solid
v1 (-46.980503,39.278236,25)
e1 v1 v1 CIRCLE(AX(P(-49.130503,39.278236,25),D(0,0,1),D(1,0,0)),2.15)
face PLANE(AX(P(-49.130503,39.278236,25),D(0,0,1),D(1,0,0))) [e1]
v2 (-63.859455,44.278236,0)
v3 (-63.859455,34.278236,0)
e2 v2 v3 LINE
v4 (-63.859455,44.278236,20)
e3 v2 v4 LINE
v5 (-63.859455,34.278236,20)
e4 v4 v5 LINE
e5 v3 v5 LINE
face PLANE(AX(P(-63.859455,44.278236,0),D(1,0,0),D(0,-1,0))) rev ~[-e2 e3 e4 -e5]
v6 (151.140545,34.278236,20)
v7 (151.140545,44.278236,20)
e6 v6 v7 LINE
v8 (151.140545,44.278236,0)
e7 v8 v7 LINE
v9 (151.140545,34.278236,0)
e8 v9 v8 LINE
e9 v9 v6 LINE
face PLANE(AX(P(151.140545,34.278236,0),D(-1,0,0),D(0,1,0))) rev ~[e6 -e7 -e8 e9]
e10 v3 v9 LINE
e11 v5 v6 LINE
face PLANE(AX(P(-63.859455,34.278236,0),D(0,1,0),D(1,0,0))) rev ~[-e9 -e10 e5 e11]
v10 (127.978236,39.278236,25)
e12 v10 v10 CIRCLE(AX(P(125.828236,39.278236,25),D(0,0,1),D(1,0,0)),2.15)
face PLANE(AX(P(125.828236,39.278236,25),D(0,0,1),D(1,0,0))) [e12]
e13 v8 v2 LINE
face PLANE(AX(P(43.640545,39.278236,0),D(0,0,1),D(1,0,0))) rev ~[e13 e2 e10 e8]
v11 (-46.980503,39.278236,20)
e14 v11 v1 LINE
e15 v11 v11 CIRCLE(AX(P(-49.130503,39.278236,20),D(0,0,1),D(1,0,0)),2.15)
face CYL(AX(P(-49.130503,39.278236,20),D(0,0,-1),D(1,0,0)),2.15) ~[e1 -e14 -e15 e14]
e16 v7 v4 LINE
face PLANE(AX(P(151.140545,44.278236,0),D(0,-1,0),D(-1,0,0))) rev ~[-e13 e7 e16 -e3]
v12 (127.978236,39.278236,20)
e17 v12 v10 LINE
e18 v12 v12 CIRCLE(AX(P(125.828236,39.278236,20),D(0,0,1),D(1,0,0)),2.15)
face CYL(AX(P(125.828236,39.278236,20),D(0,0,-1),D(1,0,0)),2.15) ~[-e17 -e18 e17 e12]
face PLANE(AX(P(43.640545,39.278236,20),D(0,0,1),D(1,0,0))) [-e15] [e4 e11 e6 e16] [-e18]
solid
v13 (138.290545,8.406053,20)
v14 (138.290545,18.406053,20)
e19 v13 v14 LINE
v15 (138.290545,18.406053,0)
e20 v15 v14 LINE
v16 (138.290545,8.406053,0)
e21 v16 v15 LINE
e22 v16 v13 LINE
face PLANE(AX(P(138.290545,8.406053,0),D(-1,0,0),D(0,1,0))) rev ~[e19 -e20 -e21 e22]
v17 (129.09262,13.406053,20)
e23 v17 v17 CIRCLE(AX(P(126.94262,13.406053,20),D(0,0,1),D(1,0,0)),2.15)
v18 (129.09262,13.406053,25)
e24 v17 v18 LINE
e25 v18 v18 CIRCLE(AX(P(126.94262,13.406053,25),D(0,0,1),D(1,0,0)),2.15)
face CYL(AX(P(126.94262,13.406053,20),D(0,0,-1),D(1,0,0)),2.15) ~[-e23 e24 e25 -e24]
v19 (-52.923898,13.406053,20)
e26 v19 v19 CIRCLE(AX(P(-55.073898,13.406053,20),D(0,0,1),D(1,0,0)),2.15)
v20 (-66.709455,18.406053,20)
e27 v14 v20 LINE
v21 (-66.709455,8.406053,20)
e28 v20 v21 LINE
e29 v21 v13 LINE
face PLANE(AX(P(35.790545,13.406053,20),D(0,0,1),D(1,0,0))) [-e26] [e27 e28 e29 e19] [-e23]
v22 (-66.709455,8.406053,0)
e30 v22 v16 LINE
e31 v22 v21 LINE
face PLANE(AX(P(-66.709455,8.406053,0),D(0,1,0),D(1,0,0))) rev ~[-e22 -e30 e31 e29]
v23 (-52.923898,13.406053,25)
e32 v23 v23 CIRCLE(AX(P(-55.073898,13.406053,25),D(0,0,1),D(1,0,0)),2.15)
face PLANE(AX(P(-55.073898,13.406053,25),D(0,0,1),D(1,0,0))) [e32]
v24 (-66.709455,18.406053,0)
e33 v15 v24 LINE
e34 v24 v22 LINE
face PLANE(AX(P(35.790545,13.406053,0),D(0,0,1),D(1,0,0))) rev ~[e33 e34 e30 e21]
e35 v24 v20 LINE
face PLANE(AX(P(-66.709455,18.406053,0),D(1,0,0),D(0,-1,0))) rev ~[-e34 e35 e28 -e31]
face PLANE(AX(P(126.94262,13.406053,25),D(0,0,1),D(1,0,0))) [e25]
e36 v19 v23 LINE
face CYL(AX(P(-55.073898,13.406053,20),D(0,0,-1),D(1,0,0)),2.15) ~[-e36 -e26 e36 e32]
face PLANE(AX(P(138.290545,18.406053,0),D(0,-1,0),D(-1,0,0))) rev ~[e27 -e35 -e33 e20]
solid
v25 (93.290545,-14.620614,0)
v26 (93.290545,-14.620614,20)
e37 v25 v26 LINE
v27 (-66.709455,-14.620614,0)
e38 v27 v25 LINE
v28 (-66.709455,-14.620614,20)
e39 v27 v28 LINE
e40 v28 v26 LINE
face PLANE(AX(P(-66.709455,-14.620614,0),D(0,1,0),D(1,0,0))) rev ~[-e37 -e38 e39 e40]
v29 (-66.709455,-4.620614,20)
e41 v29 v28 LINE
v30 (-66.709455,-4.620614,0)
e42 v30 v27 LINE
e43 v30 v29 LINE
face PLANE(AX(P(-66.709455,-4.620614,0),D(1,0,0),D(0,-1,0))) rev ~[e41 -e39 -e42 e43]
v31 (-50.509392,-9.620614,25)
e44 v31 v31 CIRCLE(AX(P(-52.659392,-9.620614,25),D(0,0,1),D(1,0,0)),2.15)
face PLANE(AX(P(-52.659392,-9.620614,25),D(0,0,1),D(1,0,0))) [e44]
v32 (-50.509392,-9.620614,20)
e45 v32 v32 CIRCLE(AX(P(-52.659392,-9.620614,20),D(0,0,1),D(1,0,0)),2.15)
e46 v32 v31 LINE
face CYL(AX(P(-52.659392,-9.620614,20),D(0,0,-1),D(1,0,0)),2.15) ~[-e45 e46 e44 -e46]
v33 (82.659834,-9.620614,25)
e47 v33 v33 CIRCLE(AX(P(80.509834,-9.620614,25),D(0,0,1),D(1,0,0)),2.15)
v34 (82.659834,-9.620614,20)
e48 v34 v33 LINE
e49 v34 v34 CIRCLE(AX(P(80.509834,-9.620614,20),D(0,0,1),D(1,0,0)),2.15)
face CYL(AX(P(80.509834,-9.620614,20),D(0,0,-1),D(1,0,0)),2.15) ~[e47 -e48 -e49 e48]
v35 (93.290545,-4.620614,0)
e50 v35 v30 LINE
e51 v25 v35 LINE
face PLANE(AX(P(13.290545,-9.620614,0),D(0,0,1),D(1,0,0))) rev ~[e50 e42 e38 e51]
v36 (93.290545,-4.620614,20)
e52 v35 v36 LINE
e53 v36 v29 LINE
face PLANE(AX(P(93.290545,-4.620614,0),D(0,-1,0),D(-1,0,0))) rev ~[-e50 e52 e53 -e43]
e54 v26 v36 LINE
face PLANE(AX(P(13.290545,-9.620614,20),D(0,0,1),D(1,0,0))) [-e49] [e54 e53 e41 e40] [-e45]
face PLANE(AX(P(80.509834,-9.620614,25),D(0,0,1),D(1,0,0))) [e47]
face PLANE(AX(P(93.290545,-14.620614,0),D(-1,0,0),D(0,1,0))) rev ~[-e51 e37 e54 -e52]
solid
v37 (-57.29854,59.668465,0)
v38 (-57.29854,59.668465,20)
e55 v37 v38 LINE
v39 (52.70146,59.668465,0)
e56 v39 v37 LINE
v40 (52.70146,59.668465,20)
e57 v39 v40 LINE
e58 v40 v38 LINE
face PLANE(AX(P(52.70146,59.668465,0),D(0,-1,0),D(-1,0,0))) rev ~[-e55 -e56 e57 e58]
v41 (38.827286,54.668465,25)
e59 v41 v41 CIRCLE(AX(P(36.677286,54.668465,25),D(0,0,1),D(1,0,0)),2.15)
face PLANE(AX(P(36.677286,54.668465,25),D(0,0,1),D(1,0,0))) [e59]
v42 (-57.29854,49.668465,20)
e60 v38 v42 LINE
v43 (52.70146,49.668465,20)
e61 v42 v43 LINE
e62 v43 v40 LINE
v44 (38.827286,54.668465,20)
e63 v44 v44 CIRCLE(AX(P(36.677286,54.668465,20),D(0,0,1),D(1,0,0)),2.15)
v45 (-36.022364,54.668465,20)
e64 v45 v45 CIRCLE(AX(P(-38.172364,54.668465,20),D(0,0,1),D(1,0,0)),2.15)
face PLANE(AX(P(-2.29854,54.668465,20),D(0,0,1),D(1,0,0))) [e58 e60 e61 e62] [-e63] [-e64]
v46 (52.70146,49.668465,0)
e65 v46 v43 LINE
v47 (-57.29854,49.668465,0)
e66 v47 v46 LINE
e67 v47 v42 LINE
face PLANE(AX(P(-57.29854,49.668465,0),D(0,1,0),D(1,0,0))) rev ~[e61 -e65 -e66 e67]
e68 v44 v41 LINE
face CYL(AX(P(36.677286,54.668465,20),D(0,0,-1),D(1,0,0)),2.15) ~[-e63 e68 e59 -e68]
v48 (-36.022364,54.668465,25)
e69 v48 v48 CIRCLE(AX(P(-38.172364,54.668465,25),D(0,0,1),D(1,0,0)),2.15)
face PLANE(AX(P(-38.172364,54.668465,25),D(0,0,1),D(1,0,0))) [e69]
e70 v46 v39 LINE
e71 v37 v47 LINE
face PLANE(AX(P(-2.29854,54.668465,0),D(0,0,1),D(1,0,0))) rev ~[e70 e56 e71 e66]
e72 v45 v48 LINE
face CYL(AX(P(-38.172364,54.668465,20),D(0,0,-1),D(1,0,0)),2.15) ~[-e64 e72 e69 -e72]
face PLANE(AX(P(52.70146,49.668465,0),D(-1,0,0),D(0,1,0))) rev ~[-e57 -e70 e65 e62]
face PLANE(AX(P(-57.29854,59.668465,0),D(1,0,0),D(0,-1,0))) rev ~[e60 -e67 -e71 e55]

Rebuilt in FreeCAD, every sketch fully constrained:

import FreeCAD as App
import Part
import Sketcher

doc = App.newDocument("Part")
body = doc.addObject("PartDesign::Body", "Body")
body.AllowCompound = True

sketch1 = body.newObject("Sketcher::SketchObject", "Sketch")
sketch1.AttachmentSupport = (doc.getObject("XY_Plane"), [""])
sketch1.MapMode = "FlatFace"
sketch1.addGeometry([
    Part.LineSegment(App.Vector(-57, 60, 0), App.Vector(-57, 50, 0)),
    Part.LineSegment(App.Vector(-57, 50, 0), App.Vector(53, 50, 0)),
    Part.LineSegment(App.Vector(53, 50, 0), App.Vector(53, 60, 0)),
    Part.LineSegment(App.Vector(53, 60, 0), App.Vector(-57, 60, 0)),
], False)
sketch1.addConstraint([
    Sketcher.Constraint("Coincident", 0, 2, 1, 1),
    Sketcher.Constraint("Coincident", 1, 2, 2, 1),
    Sketcher.Constraint("Coincident", 2, 2, 3, 1),
    Sketcher.Constraint("Coincident", 3, 2, 0, 1),
    Sketcher.Constraint("Vertical", 0),
    Sketcher.Constraint("Horizontal", 1),
    Sketcher.Constraint("Vertical", 2),
    Sketcher.Constraint("Horizontal", 3),
    Sketcher.Constraint("DistanceX", 1, 1, 1, 2, 110.0),
    Sketcher.Constraint("DistanceY", 0, 2, 0, 1, 10.0),
    Sketcher.Constraint("DistanceX", 0, 2, -1, 1, 57.29854),
    Sketcher.Constraint("DistanceY", -1, 1, 0, 2, 49.668465),
])
pad1 = body.newObject("PartDesign::Pad", "Pad")
pad1.Profile = sketch1
pad1.Length = 20

sketch2 = body.newObject("Sketcher::SketchObject", "Sketch001")
sketch2.AttachmentSupport = (doc.getObject("XY_Plane"), [""])
sketch2.MapMode = "FlatFace"
sketch2.addGeometry([
    Part.LineSegment(App.Vector(-57, 60, 0), App.Vector(-57, 50, 0)),
    Part.LineSegment(App.Vector(-57, 50, 0), App.Vector(53, 50, 0)),
    Part.LineSegment(App.Vector(53, 50, 0), App.Vector(53, 60, 0)),
    Part.LineSegment(App.Vector(53, 60, 0), App.Vector(-57, 60, 0)),
    Part.LineSegment(App.Vector(-64, 44, 0), App.Vector(-64, 34, 0)),
    Part.LineSegment(App.Vector(-64, 34, 0), App.Vector(151, 34, 0)),
    Part.LineSegment(App.Vector(151, 34, 0), App.Vector(151, 44, 0)),
    Part.LineSegment(App.Vector(151, 44, 0), App.Vector(-64, 44, 0)),
    Part.LineSegment(App.Vector(-67, 18, 0), App.Vector(-67, 8, 0)),
    Part.LineSegment(App.Vector(-67, 8, 0), App.Vector(138, 8, 0)),
    Part.LineSegment(App.Vector(138, 8, 0), App.Vector(138, 18, 0)),
    Part.LineSegment(App.Vector(138, 18, 0), App.Vector(-67, 18, 0)),
    Part.LineSegment(App.Vector(-67, -5, 0), App.Vector(-67, -15, 0)),
    Part.LineSegment(App.Vector(-67, -15, 0), App.Vector(93, -15, 0)),
    Part.LineSegment(App.Vector(93, -15, 0), App.Vector(93, -5, 0)),
    Part.LineSegment(App.Vector(93, -5, 0), App.Vector(-67, -5, 0)),
], False)
sketch2.addConstraint([
    Sketcher.Constraint("Coincident", 0, 2, 1, 1),
    Sketcher.Constraint("Coincident", 1, 2, 2, 1),
    Sketcher.Constraint("Coincident", 2, 2, 3, 1),
    Sketcher.Constraint("Coincident", 3, 2, 0, 1),
    Sketcher.Constraint("Coincident", 4, 2, 5, 1),
    Sketcher.Constraint("Coincident", 5, 2, 6, 1),
    Sketcher.Constraint("Coincident", 6, 2, 7, 1),
    Sketcher.Constraint("Coincident", 7, 2, 4, 1),
    Sketcher.Constraint("Coincident", 8, 2, 9, 1),
    Sketcher.Constraint("Coincident", 9, 2, 10, 1),
    Sketcher.Constraint("Coincident", 10, 2, 11, 1),
    Sketcher.Constraint("Coincident", 11, 2, 8, 1),
    Sketcher.Constraint("Coincident", 12, 2, 13, 1),
    Sketcher.Constraint("Coincident", 13, 2, 14, 1),
    Sketcher.Constraint("Coincident", 14, 2, 15, 1),
    Sketcher.Constraint("Coincident", 15, 2, 12, 1),
    Sketcher.Constraint("Vertical", 0),
    Sketcher.Constraint("Horizontal", 1),
    Sketcher.Constraint("Vertical", 2),
    Sketcher.Constraint("Horizontal", 3),
    Sketcher.Constraint("Vertical", 4),
    Sketcher.Constraint("Horizontal", 5),
    Sketcher.Constraint("Vertical", 6),
    Sketcher.Constraint("Horizontal", 7),
    Sketcher.Constraint("Vertical", 8),
    Sketcher.Constraint("Horizontal", 9),
    Sketcher.Constraint("Vertical", 10),
    Sketcher.Constraint("Horizontal", 11),
    Sketcher.Constraint("Vertical", 12),
    Sketcher.Constraint("Horizontal", 13),
    Sketcher.Constraint("Vertical", 14),
    Sketcher.Constraint("Horizontal", 15),
    Sketcher.Constraint("Vertical", 11, 2, 12, 2),
    Sketcher.Constraint("Equal", 2, 4),
    Sketcher.Constraint("Equal", 6, 8),
    Sketcher.Constraint("Equal", 10, 12),
    Sketcher.Constraint("DistanceX", 1, 1, 1, 2, 110.0),
    Sketcher.Constraint("DistanceX", 5, 1, 5, 2, 215.0),
    Sketcher.Constraint("DistanceX", 9, 1, 9, 2, 205.0),
    Sketcher.Constraint("DistanceX", 13, 1, 13, 2, 160.0),
    Sketcher.Constraint("DistanceY", 0, 2, 0, 1, 10.0),
    Sketcher.Constraint("DistanceX", 8, 2, 4, 2, 2.85),
    Sketcher.Constraint("DistanceX", 0, 2, -1, 1, 57.29854),
    Sketcher.Constraint("DistanceY", 4, 2, 0, 2, 15.390229),
    Sketcher.Constraint("DistanceY", 8, 2, 0, 2, 41.262412),
    Sketcher.Constraint("DistanceY", 12, 2, 4, 2, 48.89885),
    Sketcher.Constraint("DistanceY", -1, 1, 0, 2, 49.668465),
    Sketcher.Constraint("DistanceX", 4, 2, -1, 1, 63.859455),
])
pad2 = body.newObject("PartDesign::Pad", "Pad001")
pad2.Profile = sketch2
pad2.Length = 20

sketch3 = body.newObject("Sketcher::SketchObject", "Sketch002")
sketch3.AttachmentSupport = (doc.getObject("XY_Plane"), [""])
sketch3.MapMode = "FlatFace"
sketch3.AttachmentOffset = App.Placement(App.Vector(0, 0, 20), App.Rotation())
sketch3.addGeometry([
    Part.Circle(App.Vector(-38.2, 54.7, 0), App.Vector(0, 0, 1), 2.1),
    Part.Circle(App.Vector(36.7, 54.7, 0), App.Vector(0, 0, 1), 2.1),
], False)
sketch3.addConstraint([
    Sketcher.Constraint("Equal", 0, 1),
    Sketcher.Constraint("Horizontal", 0, 3, 1, 3),
    Sketcher.Constraint("Diameter", 0, 4.3),
    Sketcher.Constraint("DistanceX", 0, 3, 1, 3, 74.84965),
    Sketcher.Constraint("DistanceX", 0, 3, -1, 1, 38.172364),
    Sketcher.Constraint("DistanceY", -1, 1, 0, 3, 54.668465),
])
pad3 = body.newObject("PartDesign::Pad", "Pad002")
pad3.Profile = sketch3
pad3.Length = 5

sketch4 = body.newObject("Sketcher::SketchObject", "Sketch003")
sketch4.AttachmentSupport = (doc.getObject("XY_Plane"), [""])
sketch4.MapMode = "FlatFace"
sketch4.AttachmentOffset = App.Placement(App.Vector(0, 0, 20), App.Rotation())
sketch4.addGeometry([
    Part.Circle(App.Vector(-49.1, 39.3, 0), App.Vector(0, 0, 1), 2.1),
    Part.Circle(App.Vector(125.8, 39.3, 0), App.Vector(0, 0, 1), 2.1),
], False)
sketch4.addConstraint([
    Sketcher.Constraint("Equal", 0, 1),
    Sketcher.Constraint("Horizontal", 0, 3, 1, 3),
    Sketcher.Constraint("Diameter", 0, 4.3),
    Sketcher.Constraint("DistanceX", 0, 3, 1, 3, 174.958739),
    Sketcher.Constraint("DistanceX", 0, 3, -1, 1, 49.130503),
    Sketcher.Constraint("DistanceY", -1, 1, 0, 3, 39.278236),
])
pad4 = body.newObject("PartDesign::Pad", "Pad003")
pad4.Profile = sketch4
pad4.Length = 5

sketch5 = body.newObject("Sketcher::SketchObject", "Sketch004")
sketch5.AttachmentSupport = (doc.getObject("XY_Plane"), [""])
sketch5.MapMode = "FlatFace"
sketch5.AttachmentOffset = App.Placement(App.Vector(0, 0, 20), App.Rotation())
sketch5.addGeometry([
    Part.Circle(App.Vector(-55.1, 13.4, 0), App.Vector(0, 0, 1), 2.1),
    Part.Circle(App.Vector(126.9, 13.4, 0), App.Vector(0, 0, 1), 2.1),
], False)
sketch5.addConstraint([
    Sketcher.Constraint("Equal", 0, 1),
    Sketcher.Constraint("Horizontal", 0, 3, 1, 3),
    Sketcher.Constraint("Diameter", 0, 4.3),
    Sketcher.Constraint("DistanceX", -1, 1, 1, 3, 126.94262),
    Sketcher.Constraint("DistanceX", 0, 3, 1, 3, 182.016518),
    Sketcher.Constraint("DistanceY", -1, 1, 0, 3, 13.406053),
])
pad5 = body.newObject("PartDesign::Pad", "Pad004")
pad5.Profile = sketch5
pad5.Length = 5

sketch6 = body.newObject("Sketcher::SketchObject", "Sketch005")
sketch6.AttachmentSupport = (doc.getObject("XY_Plane"), [""])
sketch6.MapMode = "FlatFace"
sketch6.AttachmentOffset = App.Placement(App.Vector(0, 0, 20), App.Rotation())
sketch6.addGeometry([
    Part.Circle(App.Vector(-52.7, -9.6, 0), App.Vector(0, 0, 1), 2.1),
    Part.Circle(App.Vector(80.5, -9.6, 0), App.Vector(0, 0, 1), 2.1),
], False)
sketch6.addConstraint([
    Sketcher.Constraint("Equal", 0, 1),
    Sketcher.Constraint("Horizontal", 0, 3, 1, 3),
    Sketcher.Constraint("Diameter", 0, 4.3),
    Sketcher.Constraint("DistanceX", 0, 3, -1, 1, 52.659392),
    Sketcher.Constraint("DistanceY", 0, 3, -1, 1, 9.620614),
    Sketcher.Constraint("DistanceX", -1, 1, 1, 3, 80.509834),
])
pad6 = body.newObject("PartDesign::Pad", "Pad005")
pad6.Profile = sketch6
pad6.Length = 5

doc.recompute()
